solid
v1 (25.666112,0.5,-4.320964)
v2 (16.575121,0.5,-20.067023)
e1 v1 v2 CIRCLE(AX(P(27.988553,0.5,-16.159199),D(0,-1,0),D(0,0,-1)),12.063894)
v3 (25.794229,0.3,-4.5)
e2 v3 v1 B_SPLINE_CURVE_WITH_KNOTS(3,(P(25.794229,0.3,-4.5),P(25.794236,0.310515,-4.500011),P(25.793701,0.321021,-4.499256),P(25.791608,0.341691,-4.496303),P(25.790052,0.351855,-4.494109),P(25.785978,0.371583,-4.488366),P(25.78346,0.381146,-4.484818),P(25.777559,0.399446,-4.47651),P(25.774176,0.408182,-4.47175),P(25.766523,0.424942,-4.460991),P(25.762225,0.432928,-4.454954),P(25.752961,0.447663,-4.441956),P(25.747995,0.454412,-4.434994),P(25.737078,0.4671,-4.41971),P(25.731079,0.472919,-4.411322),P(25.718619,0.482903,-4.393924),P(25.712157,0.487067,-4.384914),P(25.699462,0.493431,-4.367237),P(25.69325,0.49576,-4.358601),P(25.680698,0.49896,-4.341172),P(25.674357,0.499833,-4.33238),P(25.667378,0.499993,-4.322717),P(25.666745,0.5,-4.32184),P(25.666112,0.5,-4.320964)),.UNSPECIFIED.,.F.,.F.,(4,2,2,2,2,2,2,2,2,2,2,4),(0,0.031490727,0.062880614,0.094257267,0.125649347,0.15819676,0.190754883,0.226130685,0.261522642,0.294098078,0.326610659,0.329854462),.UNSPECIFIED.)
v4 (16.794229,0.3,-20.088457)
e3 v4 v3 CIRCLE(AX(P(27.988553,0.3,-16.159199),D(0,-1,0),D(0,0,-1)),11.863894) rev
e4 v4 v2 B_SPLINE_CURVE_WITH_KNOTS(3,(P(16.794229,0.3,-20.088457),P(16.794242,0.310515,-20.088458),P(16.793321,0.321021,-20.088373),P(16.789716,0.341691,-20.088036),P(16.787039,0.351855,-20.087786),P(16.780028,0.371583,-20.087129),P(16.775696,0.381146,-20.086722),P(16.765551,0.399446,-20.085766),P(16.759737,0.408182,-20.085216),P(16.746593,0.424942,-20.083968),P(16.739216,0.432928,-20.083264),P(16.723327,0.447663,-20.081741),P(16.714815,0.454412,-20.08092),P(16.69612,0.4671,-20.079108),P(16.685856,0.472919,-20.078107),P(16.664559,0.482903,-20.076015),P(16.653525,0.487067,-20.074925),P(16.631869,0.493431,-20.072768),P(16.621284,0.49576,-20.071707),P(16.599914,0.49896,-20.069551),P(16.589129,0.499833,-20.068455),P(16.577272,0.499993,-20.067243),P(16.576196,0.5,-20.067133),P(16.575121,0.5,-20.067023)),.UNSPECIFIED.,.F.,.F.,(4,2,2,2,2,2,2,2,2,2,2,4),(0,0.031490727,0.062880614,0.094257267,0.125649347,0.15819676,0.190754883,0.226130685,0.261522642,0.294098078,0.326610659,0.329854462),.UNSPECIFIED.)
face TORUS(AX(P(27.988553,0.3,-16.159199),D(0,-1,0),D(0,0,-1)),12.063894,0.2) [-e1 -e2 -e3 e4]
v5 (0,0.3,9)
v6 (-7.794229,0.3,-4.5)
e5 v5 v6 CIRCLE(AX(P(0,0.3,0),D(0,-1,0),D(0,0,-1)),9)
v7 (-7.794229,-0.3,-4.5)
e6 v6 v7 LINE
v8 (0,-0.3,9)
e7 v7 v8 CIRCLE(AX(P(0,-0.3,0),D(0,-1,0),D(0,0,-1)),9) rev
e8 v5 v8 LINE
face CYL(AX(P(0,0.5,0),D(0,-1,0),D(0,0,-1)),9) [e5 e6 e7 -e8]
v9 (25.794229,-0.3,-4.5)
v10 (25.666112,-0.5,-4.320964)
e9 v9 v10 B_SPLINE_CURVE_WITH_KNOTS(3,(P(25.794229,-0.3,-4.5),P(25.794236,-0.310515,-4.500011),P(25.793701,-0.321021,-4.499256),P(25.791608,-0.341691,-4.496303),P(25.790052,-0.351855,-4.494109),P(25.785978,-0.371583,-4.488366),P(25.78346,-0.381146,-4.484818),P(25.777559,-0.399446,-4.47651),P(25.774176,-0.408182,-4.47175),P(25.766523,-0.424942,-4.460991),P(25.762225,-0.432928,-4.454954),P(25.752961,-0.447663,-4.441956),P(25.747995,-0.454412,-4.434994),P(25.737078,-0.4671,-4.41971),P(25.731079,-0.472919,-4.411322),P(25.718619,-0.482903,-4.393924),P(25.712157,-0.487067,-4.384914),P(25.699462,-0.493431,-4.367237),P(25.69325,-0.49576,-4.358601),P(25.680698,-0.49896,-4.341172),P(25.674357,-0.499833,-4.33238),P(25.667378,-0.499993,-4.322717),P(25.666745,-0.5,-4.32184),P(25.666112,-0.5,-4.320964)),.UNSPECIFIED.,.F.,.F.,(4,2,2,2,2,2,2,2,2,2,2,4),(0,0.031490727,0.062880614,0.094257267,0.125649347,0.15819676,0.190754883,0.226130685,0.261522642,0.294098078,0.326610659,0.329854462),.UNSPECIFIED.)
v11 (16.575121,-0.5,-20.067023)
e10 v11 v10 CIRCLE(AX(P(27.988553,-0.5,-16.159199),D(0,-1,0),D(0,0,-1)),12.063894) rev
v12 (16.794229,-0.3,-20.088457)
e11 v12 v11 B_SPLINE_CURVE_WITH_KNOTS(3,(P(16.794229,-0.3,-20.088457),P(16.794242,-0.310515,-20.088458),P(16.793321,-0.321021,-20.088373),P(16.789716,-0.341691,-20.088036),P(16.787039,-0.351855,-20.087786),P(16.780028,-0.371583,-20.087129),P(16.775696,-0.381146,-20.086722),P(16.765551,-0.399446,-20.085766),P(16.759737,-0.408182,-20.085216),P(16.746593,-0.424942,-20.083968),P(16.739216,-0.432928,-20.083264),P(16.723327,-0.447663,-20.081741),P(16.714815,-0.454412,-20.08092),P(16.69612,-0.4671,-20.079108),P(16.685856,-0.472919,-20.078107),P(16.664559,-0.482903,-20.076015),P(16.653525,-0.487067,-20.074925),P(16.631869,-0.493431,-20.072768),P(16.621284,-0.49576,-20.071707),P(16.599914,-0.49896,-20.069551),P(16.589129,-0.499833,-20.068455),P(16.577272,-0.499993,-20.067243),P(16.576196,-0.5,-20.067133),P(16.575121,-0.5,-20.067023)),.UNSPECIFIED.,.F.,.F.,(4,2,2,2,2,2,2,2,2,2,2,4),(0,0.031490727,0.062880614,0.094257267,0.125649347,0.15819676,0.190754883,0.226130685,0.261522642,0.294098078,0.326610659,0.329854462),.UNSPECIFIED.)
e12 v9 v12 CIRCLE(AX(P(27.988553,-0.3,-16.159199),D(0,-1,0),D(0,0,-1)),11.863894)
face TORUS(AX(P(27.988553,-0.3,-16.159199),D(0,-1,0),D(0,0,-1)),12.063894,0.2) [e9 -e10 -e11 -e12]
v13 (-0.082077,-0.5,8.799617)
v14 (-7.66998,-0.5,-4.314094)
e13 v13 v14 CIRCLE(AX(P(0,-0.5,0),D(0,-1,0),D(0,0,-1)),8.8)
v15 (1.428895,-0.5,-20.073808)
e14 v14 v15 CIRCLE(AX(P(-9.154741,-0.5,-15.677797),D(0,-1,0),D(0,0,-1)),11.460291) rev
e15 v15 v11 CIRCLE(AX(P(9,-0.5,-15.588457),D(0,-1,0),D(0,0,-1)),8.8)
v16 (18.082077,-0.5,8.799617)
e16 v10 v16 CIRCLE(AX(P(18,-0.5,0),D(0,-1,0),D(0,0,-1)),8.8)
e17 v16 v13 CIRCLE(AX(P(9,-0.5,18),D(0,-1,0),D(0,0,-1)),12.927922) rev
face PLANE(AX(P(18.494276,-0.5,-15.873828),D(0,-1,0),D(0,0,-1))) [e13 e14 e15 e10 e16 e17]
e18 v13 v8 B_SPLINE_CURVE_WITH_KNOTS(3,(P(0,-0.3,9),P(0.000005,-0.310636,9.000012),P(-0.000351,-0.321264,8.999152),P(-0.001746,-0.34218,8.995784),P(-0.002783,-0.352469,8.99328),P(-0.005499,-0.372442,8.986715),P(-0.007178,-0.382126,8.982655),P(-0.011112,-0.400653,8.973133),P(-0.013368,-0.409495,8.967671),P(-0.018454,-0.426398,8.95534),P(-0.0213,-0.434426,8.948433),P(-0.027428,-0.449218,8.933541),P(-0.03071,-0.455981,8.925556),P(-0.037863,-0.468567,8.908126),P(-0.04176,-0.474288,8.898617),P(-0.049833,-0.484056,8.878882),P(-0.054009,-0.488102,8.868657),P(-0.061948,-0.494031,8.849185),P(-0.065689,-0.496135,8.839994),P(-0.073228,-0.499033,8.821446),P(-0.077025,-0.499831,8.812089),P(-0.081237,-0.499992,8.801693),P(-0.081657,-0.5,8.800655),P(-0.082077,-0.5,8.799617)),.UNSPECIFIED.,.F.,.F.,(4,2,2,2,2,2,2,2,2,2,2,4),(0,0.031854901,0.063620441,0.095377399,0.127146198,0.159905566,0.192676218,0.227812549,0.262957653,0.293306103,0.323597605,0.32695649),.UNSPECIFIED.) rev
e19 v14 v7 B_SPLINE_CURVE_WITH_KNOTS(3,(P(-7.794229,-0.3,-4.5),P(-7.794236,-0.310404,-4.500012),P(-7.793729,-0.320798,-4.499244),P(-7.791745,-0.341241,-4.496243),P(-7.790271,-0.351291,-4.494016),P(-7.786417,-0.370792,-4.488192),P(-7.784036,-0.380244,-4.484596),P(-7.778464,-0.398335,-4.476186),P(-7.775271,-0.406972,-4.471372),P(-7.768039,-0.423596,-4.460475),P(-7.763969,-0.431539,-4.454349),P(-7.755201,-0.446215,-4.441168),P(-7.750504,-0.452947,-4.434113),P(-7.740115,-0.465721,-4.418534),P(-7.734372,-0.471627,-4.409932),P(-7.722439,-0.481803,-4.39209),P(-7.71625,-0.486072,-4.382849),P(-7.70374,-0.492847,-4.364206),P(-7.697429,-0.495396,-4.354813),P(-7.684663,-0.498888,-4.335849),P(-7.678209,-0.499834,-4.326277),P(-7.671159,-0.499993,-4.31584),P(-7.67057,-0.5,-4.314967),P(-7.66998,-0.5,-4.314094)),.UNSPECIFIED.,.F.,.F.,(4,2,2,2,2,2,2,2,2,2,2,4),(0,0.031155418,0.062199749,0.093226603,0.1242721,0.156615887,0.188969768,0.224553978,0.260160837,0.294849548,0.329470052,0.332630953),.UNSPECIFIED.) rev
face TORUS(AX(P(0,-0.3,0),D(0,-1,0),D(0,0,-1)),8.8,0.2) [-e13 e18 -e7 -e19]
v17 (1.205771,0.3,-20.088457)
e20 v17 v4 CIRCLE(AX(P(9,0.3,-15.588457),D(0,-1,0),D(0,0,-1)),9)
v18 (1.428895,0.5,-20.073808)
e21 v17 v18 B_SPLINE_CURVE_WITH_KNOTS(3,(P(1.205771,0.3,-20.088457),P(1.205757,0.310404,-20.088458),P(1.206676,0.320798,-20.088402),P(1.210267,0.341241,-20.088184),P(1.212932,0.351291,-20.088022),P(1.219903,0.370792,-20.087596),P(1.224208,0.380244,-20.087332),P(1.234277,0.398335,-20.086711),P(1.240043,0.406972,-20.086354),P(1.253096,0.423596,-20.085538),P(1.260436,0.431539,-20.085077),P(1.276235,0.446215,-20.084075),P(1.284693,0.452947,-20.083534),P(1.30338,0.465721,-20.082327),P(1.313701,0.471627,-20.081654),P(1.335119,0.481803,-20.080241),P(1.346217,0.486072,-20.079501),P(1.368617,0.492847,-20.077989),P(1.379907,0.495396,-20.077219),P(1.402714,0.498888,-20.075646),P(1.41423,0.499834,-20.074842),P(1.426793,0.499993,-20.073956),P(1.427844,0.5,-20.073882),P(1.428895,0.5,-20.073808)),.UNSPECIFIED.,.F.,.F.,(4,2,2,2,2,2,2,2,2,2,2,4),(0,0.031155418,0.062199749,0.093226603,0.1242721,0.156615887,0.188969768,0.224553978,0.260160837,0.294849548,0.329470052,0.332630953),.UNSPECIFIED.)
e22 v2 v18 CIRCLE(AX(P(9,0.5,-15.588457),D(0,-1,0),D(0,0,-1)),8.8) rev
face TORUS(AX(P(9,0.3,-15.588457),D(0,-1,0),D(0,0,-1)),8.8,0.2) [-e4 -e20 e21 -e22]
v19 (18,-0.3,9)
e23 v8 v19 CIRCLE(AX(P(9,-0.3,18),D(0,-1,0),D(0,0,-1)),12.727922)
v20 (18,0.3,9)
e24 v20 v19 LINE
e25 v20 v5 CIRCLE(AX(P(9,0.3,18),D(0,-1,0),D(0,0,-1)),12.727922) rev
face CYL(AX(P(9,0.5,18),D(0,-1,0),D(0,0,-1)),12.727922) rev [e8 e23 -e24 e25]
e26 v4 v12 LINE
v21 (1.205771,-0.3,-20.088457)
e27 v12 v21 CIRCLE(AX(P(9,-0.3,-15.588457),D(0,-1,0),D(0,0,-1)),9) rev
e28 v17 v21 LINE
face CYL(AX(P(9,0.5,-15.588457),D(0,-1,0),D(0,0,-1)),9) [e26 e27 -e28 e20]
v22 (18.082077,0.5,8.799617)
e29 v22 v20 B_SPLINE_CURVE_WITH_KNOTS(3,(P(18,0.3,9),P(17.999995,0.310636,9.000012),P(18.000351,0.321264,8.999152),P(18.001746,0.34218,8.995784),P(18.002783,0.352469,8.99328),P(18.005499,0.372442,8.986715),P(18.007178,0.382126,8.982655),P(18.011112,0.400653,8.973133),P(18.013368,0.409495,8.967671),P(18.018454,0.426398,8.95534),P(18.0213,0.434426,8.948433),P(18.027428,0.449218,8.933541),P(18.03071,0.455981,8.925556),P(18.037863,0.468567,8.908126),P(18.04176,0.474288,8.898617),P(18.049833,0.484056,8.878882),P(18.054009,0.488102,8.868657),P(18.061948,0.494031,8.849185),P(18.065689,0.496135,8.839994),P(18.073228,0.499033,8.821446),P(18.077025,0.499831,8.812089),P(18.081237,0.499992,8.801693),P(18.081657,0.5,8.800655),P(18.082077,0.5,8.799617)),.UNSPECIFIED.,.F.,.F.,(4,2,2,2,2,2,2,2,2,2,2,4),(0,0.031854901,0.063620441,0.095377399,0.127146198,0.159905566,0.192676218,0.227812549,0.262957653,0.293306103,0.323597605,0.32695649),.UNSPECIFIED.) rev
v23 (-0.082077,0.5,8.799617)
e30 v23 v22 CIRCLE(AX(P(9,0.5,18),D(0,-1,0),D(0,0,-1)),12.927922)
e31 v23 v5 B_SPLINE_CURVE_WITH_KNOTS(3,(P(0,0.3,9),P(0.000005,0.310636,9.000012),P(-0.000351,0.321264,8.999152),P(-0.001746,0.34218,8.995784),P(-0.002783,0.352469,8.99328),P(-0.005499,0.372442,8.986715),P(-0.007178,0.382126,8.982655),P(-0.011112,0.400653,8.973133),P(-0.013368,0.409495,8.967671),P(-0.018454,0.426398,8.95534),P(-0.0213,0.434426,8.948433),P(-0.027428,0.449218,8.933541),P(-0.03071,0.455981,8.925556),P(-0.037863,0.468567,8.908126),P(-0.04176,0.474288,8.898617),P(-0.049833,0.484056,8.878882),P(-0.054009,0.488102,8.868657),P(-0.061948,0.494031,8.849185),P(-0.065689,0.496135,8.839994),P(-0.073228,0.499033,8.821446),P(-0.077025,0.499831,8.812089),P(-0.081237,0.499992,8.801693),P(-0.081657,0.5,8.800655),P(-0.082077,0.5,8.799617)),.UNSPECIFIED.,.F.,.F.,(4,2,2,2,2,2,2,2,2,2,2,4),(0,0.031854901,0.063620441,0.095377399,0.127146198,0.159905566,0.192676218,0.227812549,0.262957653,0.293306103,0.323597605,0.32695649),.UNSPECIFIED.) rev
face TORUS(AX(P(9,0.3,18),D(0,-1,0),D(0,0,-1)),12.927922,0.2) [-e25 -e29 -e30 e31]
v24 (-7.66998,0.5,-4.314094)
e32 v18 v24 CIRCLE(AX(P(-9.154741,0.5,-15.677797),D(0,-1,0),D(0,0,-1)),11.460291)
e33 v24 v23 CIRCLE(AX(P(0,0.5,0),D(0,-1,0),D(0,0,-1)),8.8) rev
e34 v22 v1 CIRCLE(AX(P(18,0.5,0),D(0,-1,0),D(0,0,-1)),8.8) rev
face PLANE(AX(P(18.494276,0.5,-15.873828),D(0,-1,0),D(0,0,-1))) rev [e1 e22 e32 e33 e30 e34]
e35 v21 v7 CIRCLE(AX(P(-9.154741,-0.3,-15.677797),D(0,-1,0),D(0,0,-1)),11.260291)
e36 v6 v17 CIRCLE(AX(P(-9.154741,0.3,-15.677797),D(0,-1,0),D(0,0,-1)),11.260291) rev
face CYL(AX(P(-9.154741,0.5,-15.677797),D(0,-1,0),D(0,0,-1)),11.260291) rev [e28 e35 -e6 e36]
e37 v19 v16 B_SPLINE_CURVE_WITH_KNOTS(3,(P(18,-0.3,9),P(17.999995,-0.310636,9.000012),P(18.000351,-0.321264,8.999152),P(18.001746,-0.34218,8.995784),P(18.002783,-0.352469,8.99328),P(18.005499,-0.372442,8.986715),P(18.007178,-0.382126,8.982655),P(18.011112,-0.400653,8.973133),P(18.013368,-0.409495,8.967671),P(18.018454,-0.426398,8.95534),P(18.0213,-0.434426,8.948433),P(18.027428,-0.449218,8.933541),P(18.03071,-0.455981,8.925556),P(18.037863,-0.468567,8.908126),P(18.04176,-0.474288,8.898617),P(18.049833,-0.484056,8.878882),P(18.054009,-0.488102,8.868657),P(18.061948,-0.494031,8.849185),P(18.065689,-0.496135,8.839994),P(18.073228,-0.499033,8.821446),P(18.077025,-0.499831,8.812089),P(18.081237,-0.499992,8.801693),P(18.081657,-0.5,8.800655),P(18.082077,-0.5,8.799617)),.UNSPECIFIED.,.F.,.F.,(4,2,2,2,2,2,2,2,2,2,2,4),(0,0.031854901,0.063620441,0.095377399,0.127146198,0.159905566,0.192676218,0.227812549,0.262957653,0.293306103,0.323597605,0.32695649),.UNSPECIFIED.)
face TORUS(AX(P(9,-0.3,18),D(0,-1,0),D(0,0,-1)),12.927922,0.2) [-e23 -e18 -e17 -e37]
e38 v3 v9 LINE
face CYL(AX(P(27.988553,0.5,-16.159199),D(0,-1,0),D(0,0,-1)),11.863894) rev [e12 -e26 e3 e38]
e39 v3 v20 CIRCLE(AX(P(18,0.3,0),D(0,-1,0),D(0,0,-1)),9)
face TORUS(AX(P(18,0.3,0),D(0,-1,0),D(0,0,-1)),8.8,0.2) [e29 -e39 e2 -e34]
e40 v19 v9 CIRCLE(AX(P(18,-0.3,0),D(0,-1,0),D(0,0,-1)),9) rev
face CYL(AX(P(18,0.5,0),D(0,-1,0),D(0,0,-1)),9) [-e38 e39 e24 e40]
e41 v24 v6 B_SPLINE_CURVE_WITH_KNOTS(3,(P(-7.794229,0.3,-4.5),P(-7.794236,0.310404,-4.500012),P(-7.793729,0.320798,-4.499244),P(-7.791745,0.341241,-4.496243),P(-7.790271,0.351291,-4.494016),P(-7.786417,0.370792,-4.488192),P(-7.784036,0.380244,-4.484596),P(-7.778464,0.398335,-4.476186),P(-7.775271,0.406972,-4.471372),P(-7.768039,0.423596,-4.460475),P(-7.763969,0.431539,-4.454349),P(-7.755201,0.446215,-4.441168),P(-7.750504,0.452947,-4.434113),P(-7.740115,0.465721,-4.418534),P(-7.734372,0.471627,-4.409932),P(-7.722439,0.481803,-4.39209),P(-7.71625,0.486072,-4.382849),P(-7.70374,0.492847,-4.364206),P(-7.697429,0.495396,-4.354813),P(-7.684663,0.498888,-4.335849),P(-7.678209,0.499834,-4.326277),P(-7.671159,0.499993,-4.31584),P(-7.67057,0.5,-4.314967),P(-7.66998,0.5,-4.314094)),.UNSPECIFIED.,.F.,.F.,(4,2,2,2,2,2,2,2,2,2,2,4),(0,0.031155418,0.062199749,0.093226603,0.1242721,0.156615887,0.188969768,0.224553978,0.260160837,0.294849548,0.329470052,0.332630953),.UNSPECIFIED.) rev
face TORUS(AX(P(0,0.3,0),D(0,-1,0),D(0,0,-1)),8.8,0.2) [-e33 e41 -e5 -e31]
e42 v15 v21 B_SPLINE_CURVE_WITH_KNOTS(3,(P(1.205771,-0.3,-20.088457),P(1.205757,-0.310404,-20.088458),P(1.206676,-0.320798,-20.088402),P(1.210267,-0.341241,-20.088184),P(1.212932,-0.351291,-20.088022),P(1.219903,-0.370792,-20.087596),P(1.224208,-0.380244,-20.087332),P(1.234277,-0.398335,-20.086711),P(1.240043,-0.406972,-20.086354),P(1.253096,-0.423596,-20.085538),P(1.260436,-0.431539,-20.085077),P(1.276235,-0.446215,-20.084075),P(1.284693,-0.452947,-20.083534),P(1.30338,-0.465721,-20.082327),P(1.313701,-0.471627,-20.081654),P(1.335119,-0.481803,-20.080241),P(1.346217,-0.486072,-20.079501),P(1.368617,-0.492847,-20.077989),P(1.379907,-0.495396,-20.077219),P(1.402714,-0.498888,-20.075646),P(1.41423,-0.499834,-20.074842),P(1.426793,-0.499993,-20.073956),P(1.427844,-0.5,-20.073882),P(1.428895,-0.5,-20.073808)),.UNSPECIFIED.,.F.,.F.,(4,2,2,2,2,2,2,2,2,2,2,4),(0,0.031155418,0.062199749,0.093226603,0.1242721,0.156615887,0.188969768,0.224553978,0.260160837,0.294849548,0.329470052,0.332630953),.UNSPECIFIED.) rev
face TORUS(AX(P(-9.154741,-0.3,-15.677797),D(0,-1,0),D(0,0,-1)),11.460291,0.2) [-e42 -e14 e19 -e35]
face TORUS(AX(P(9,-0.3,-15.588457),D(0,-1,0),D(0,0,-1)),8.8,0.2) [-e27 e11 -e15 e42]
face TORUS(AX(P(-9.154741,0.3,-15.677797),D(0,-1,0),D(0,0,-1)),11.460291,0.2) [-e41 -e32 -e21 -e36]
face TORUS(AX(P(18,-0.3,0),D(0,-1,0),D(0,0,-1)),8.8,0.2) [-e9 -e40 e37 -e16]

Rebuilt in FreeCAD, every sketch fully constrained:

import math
import FreeCAD as App
import Part
import Sketcher

V = App.Vector
Q = App.Units.Quantity


def edges_at(feature, points):
    """Names of the edges that pass closest to the given points."""
    edges = feature.Shape.Edges
    near = lambda p: min(range(len(edges)), key=lambda i: edges[i].distToShape(Part.Vertex(*p))[0])
    return sorted({f"Edge{near(p) + 1}" for p in points})

doc = App.newDocument("Part")
params = doc.addObject("Spreadsheet::Sheet", "Params")
for row, (alias, value) in enumerate([
    ("sketch1_radius", "9 mm"),
    ("pad1_length", "1 mm"),
    ("fillet_radius", "0.2 mm"),
], start=1):
    params.set(f"A{row}", alias)
    params.set(f"B{row}", "=" + value)
    params.setAlias(f"B{row}", alias)

body = doc.addObject("PartDesign::Body", "Body")

sketch1 = body.newObject("Sketcher::SketchObject", "Sketch")
sketch1.AttachmentSupport = (doc.getObject("XZ_Plane"), [""])
sketch1.MapMode = "FlatFace"
sketch1.addGeometry([
    Part.ArcOfCircle(Part.Circle(V(-9, -16, 0), V(0, 0, 1), 11), math.radians(-23), math.radians(83)),
    Part.ArcOfCircle(Part.Circle(V(0, 0, 0), V(0, 0, 1), 9), math.radians(90), math.radians(210)),
    Part.ArcOfCircle(Part.Circle(V(9, 18, 0), V(0, 0, 1), 13), math.radians(-135), math.radians(-45)),
    Part.ArcOfCircle(Part.Circle(V(18, 0, 0), V(0, 0, 1), 9), math.radians(-30), math.radians(90)),
    Part.ArcOfCircle(Part.Circle(V(28, -16, 0), V(0, 0, 1), 12), math.radians(101), math.radians(199)),
    Part.ArcOfCircle(Part.Circle(V(9, -16, 0), V(0, 0, 1), 9), math.radians(-150), math.radians(-30)),
], False)
sketch1.addConstraint([
    Sketcher.Constraint("Coincident", 0, 2, 1, 2),
    Sketcher.Constraint("Coincident", 1, 1, 2, 1),
    Sketcher.Constraint("Coincident", 2, 2, 3, 2),
    Sketcher.Constraint("Coincident", 3, 1, 4, 1),
    Sketcher.Constraint("Coincident", 4, 2, 5, 2),
    Sketcher.Constraint("Coincident", 5, 1, 0, 1),
    Sketcher.Constraint("Coincident", 1, 3, -1, 1),
    Sketcher.Constraint("Equal", 1, 3),
    Sketcher.Constraint("Equal", 3, 5),
    Sketcher.Constraint("PointOnObject", 3, 3, -1),
    Sketcher.Constraint("PointOnObject", 1, 1, -2),
    Sketcher.Constraint("Horizontal", 0, 2, 3, 1),
    Sketcher.Constraint("Horizontal", 4, 2, 5, 1),
    Sketcher.Constraint("Vertical", 2, 3, 5, 3),
    Sketcher.Constraint("Vertical", 3, 3, 2, 2),
    Sketcher.Constraint("Radius", 1, Q("9 mm")),
    Sketcher.Constraint("DistanceX", -1, 1, 2, 3, Q("9 mm")),
    Sketcher.Constraint("DistanceY", -1, 1, 2, 3, Q("18 mm")),
    Sketcher.Constraint("DistanceX", 4, 2, 3, 1, Q("9 mm")),
    Sketcher.Constraint("DistanceY", 0, 2, -1, 1, Q("4.5 mm")),
    Sketcher.Constraint("Radius", 0, Q("11.260291 mm")),
    Sketcher.Constraint("Radius", 4, Q("11.863894 mm")),
    Sketcher.Constraint("DistanceY", 4, 3, -1, 1, Q("16.159199 mm")),
])
sketch1.setExpression("Constraints[15]", "Params.sketch1_radius")
pad1 = body.newObject("PartDesign::Pad", "Pad")
pad1.Profile = sketch1
pad1.setExpression("Length", "Params.pad1_length")
pad1.Midplane = True
doc.recompute()

fillet = body.newObject("PartDesign::Fillet", "Fillet")
fillet.Base = (pad1, edges_at(pad1, [
    (0.597, 0.5, -10.048),
    (-7.794, 0.5, 4.5),
    (9, 0.5, 5.272),
    (25.794, 0.5, 4.5),
    (17.714, 0.5, -10.227),
    (25.794, -0.5, 4.5),
    (9, -0.5, 5.272),
    (-7.794, -0.5, 4.5),
    (9, 0.5, -24.588),
    (0.597, -0.5, -10.048),
    (9, -0.5, -24.588),
    (17.714, -0.5, -10.227),
]))
fillet.setExpression("Radius", "Params.fillet_radius")

doc.recompute()
